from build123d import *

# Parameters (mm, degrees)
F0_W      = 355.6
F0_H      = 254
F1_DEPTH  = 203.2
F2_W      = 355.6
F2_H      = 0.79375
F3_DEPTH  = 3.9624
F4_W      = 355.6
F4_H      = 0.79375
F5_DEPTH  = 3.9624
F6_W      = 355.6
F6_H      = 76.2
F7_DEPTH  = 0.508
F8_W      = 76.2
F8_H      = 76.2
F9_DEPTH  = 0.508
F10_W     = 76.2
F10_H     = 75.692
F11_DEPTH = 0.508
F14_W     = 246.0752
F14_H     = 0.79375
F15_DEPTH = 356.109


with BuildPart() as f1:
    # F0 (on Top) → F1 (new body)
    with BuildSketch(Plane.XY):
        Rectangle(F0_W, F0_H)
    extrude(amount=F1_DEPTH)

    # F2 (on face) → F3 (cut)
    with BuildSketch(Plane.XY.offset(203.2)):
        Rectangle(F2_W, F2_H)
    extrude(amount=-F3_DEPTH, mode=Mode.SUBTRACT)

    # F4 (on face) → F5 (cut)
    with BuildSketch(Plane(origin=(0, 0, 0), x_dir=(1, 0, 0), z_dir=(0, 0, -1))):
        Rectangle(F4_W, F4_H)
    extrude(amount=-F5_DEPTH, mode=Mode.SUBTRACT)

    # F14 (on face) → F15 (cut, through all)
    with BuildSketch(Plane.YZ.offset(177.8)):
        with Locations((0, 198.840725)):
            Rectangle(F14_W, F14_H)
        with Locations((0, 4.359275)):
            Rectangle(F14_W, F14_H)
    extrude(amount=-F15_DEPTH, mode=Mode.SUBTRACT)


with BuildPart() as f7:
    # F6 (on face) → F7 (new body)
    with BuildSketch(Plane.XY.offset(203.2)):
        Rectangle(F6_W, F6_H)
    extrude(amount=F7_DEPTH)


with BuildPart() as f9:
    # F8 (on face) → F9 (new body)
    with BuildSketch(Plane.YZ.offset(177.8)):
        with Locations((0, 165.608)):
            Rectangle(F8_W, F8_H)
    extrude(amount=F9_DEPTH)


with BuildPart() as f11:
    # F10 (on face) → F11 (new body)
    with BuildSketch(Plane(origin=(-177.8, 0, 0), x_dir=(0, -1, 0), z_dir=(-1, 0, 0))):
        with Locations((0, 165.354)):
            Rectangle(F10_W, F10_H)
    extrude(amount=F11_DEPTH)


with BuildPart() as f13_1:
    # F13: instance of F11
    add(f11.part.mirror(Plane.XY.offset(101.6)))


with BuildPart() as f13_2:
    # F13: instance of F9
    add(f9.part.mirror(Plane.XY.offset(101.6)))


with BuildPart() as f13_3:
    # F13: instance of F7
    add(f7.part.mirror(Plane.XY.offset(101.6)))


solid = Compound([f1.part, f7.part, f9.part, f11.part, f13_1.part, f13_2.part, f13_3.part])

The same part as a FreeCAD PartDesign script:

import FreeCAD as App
import Part
import Sketcher
Q = App.Units.Quantity

doc = App.newDocument("Part")
body = doc.addObject("PartDesign::Body", "Body")

# Sketch on XY plane
sketch1 = body.newObject("Sketcher::SketchObject", "Sketch")
sketch1.AttachmentSupport = (doc.getObject("XY_Plane"), [""])
sketch1.MapMode = "FlatFace"
sketch1.addGeometry(Part.LineSegment(App.Vector(-178, 127, 0), App.Vector(-178, -127, 0)), False)
sketch1.addGeometry(Part.LineSegment(App.Vector(-178, -127, 0), App.Vector(178, -127, 0)), False)
sketch1.addGeometry(Part.LineSegment(App.Vector(178, -127, 0), App.Vector(178, 127, 0)), False)
sketch1.addGeometry(Part.LineSegment(App.Vector(178, 127, 0), App.Vector(-178, 127, 0)), False)
sketch1.addConstraint(Sketcher.Constraint("Coincident", 0, 2, 1, 1))
sketch1.addConstraint(Sketcher.Constraint("Coincident", 1, 2, 2, 1))
sketch1.addConstraint(Sketcher.Constraint("Coincident", 2, 2, 3, 1))
sketch1.addConstraint(Sketcher.Constraint("Coincident", 3, 2, 0, 1))
sketch1.addConstraint(Sketcher.Constraint("Vertical", 0))
sketch1.addConstraint(Sketcher.Constraint("Horizontal", 1))
sketch1.addConstraint(Sketcher.Constraint("Vertical", 2))
sketch1.addConstraint(Sketcher.Constraint("Horizontal", 3))
sketch1.addConstraint(Sketcher.Constraint("Symmetric", 0, 2, 2, 2, -1, 1))
sketch1.addConstraint(Sketcher.Constraint("DistanceX", 1, 1, 1, 2, Q("14 in")))
sketch1.addConstraint(Sketcher.Constraint("DistanceY", 0, 2, 0, 1, Q("10 in")))
pad1 = body.newObject("PartDesign::Pad", "Pad")
pad1.Profile = sketch1
pad1.Length = Q("8 in")

# Sketch on XY plane
sketch2 = body.newObject("Sketcher::SketchObject", "Sketch001")
sketch2.AttachmentSupport = (doc.getObject("XY_Plane"), [""])
sketch2.MapMode = "FlatFace"
sketch2.AttachmentOffset = App.Placement(App.Vector(0, 0, 8 * 25.4), App.Rotation())
sketch2.addGeometry(Part.LineSegment(App.Vector(-177.8, 0.4, 0), App.Vector(-177.8, -0.4, 0)), False)
sketch2.addGeometry(Part.LineSegment(App.Vector(-177.8, -0.4, 0), App.Vector(177.8, -0.4, 0)), False)
sketch2.addGeometry(Part.LineSegment(App.Vector(177.8, -0.4, 0), App.Vector(177.8, 0.4, 0)), False)
sketch2.addGeometry(Part.LineSegment(App.Vector(177.8, 0.4, 0), App.Vector(-177.8, 0.4, 0)), False)
sketch2.addConstraint(Sketcher.Constraint("Coincident", 0, 2, 1, 1))
sketch2.addConstraint(Sketcher.Constraint("Coincident", 1, 2, 2, 1))
sketch2.addConstraint(Sketcher.Constraint("Coincident", 2, 2, 3, 1))
sketch2.addConstraint(Sketcher.Constraint("Coincident", 3, 2, 0, 1))
sketch2.addConstraint(Sketcher.Constraint("Vertical", 0))
sketch2.addConstraint(Sketcher.Constraint("Horizontal", 1))
sketch2.addConstraint(Sketcher.Constraint("Vertical", 2))
sketch2.addConstraint(Sketcher.Constraint("Horizontal", 3))
sketch2.addConstraint(Sketcher.Constraint("Symmetric", 0, 2, 2, 2, -1, 1))
sketch2.addConstraint(Sketcher.Constraint("DistanceX", 1, 1, 1, 2, Q("14 in")))
sketch2.addConstraint(Sketcher.Constraint("DistanceY", 0, 2, 0, 1, Q("0.03125 in")))
pocket1 = body.newObject("PartDesign::Pocket", "Pocket")
pocket1.Profile = sketch2
pocket1.Length = Q("0.156 in")

# Sketch on XY plane
sketch3 = body.newObject("Sketcher::SketchObject", "Sketch002")
sketch3.AttachmentSupport = (doc.getObject("XY_Plane"), [""])
sketch3.MapMode = "FlatFace"
sketch3.addGeometry(Part.LineSegment(App.Vector(-177.8, -0.4, 0), App.Vector(-177.8, 0.4, 0)), False)
sketch3.addGeometry(Part.LineSegment(App.Vector(-177.8, 0.4, 0), App.Vector(177.8, 0.4, 0)), False)
sketch3.addGeometry(Part.LineSegment(App.Vector(177.8, 0.4, 0), App.Vector(177.8, -0.4, 0)), False)
sketch3.addGeometry(Part.LineSegment(App.Vector(177.8, -0.4, 0), App.Vector(-177.8, -0.4, 0)), False)
sketch3.addConstraint(Sketcher.Constraint("Coincident", 0, 2, 1, 1))
sketch3.addConstraint(Sketcher.Constraint("Coincident", 1, 2, 2, 1))
sketch3.addConstraint(Sketcher.Constraint("Coincident", 2, 2, 3, 1))
sketch3.addConstraint(Sketcher.Constraint("Coincident", 3, 2, 0, 1))
sketch3.addConstraint(Sketcher.Constraint("Vertical", 0))
sketch3.addConstraint(Sketcher.Constraint("Horizontal", 1))
sketch3.addConstraint(Sketcher.Constraint("Vertical", 2))
sketch3.addConstraint(Sketcher.Constraint("Horizontal", 3))
sketch3.addConstraint(Sketcher.Constraint("Symmetric", 0, 2, 2, 2, -1, 1))
sketch3.addConstraint(Sketcher.Constraint("DistanceX", 1, 1, 1, 2, Q("14 in")))
sketch3.addConstraint(Sketcher.Constraint("DistanceY", 0, 1, 0, 2, Q("0.03125 in")))
pocket2 = body.newObject("PartDesign::Pocket", "Pocket001")
pocket2.Profile = sketch3
pocket2.Length = Q("0.156 in")
pocket2.Reversed = True

# Sketch on YZ plane
sketch4 = body.newObject("Sketcher::SketchObject", "Sketch003")
sketch4.AttachmentSupport = (doc.getObject("YZ_Plane"), [""])
sketch4.MapMode = "FlatFace"
sketch4.AttachmentOffset = App.Placement(App.Vector(0, 0, 7 * 25.4), App.Rotation())
sketch4.addGeometry(Part.LineSegment(App.Vector(-123, 199.2, 0), App.Vector(-123, 198.4, 0)), False)
sketch4.addGeometry(Part.LineSegment(App.Vector(-123, 198.4, 0), App.Vector(123, 198.4, 0)), False)
sketch4.addGeometry(Part.LineSegment(App.Vector(123, 198.4, 0), App.Vector(123, 199.2, 0)), False)
sketch4.addGeometry(Part.LineSegment(App.Vector(123, 199.2, 0), App.Vector(-123, 199.2, 0)), False)
sketch4.addGeometry(Part.LineSegment(App.Vector(-123, 4.8, 0), App.Vector(-123, 4, 0)), False)
sketch4.addGeometry(Part.LineSegment(App.Vector(-123, 4, 0), App.Vector(123, 4, 0)), False)
sketch4.addGeometry(Part.LineSegment(App.Vector(123, 4, 0), App.Vector(123, 4.8, 0)), False)
sketch4.addGeometry(Part.LineSegment(App.Vector(123, 4.8, 0), App.Vector(-123, 4.8, 0)), False)
sketch4.addConstraint(Sketcher.Constraint("Coincident", 0, 2, 1, 1))
sketch4.addConstraint(Sketcher.Constraint("Coincident", 1, 2, 2, 1))
sketch4.addConstraint(Sketcher.Constraint("Coincident", 2, 2, 3, 1))
sketch4.addConstraint(Sketcher.Constraint("Coincident", 3, 2, 0, 1))
sketch4.addConstraint(Sketcher.Constraint("Coincident", 4, 2, 5, 1))
sketch4.addConstraint(Sketcher.Constraint("Coincident", 5, 2, 6, 1))
sketch4.addConstraint(Sketcher.Constraint("Coincident", 6, 2, 7, 1))
sketch4.addConstraint(Sketcher.Constraint("Coincident", 7, 2, 4, 1))
sketch4.addConstraint(Sketcher.Constraint("Vertical", 0))
sketch4.addConstraint(Sketcher.Constraint("Horizontal", 1))
sketch4.addConstraint(Sketcher.Constraint("Vertical", 2))
sketch4.addConstraint(Sketcher.Constraint("Horizontal", 3))
sketch4.addConstraint(Sketcher.Constraint("Vertical", 4))
sketch4.addConstraint(Sketcher.Constraint("Horizontal", 5))
sketch4.addConstraint(Sketcher.Constraint("Vertical", 6))
sketch4.addConstraint(Sketcher.Constraint("Horizontal", 7))
sketch4.addConstraint(Sketcher.Constraint("Vertical", 3, 2, 4, 2))
sketch4.addConstraint(Sketcher.Constraint("Vertical", 2, 2, 5, 2))
sketch4.addConstraint(Sketcher.Constraint("Equal", 2, 4))
sketch4.addConstraint(Sketcher.Constraint("DistanceX", 1, 1, 1, 2, Q("9.688 in")))
sketch4.addConstraint(Sketcher.Constraint("DistanceY", 0, 2, 0, 1, Q("0.03125 in")))
sketch4.addConstraint(Sketcher.Constraint("DistanceX", 0, 2, -1, 1, Q("4.844 in")))
sketch4.addConstraint(Sketcher.Constraint("DistanceY", -1, 1, 2, 2, Q("7.844 in")))
sketch4.addConstraint(Sketcher.Constraint("DistanceY", -1, 1, 4, 2, Q("0.156 in")))
pocket3 = body.newObject("PartDesign::Pocket", "Pocket002")
pocket3.Profile = sketch4
pocket3.Type = "ThroughAll"
body2 = doc.addObject("PartDesign::Body", "Body001")

# Sketch on XY plane
sketch5 = body2.newObject("Sketcher::SketchObject", "Sketch004")
sketch5.AttachmentSupport = (doc.getObject("XY_Plane001"), [""])
sketch5.MapMode = "FlatFace"
sketch5.AttachmentOffset = App.Placement(App.Vector(0, 0, 8 * 25.4), App.Rotation())
sketch5.addGeometry(Part.LineSegment(App.Vector(-178, 38, 0), App.Vector(-178, -38, 0)), False)
sketch5.addGeometry(Part.LineSegment(App.Vector(-178, -38, 0), App.Vector(178, -38, 0)), False)
sketch5.addGeometry(Part.LineSegment(App.Vector(178, -38, 0), App.Vector(178, 38, 0)), False)
sketch5.addGeometry(Part.LineSegment(App.Vector(178, 38, 0), App.Vector(-178, 38, 0)), False)
sketch5.addConstraint(Sketcher.Constraint("Coincident", 0, 2, 1, 1))
sketch5.addConstraint(Sketcher.Constraint("Coincident", 1, 2, 2, 1))
sketch5.addConstraint(Sketcher.Constraint("Coincident", 2, 2, 3, 1))
sketch5.addConstraint(Sketcher.Constraint("Coincident", 3, 2, 0, 1))
sketch5.addConstraint(Sketcher.Constraint("Vertical", 0))
sketch5.addConstraint(Sketcher.Constraint("Horizontal", 1))
sketch5.addConstraint(Sketcher.Constraint("Vertical", 2))
sketch5.addConstraint(Sketcher.Constraint("Horizontal", 3))
sketch5.addConstraint(Sketcher.Constraint("Symmetric", 0, 2, 2, 2, -1, 1))
sketch5.addConstraint(Sketcher.Constraint("DistanceX", 1, 1, 1, 2, Q("14 in")))
sketch5.addConstraint(Sketcher.Constraint("DistanceY", 0, 2, 0, 1, Q("3 in")))
pad2 = body2.newObject("PartDesign::Pad", "Pad001")
pad2.Profile = sketch5
pad2.Length = Q("0.02 in")
body3 = doc.addObject("PartDesign::Body", "Body002")

# Sketch on YZ plane
sketch6 = body3.newObject("Sketcher::SketchObject", "Sketch005")
sketch6.AttachmentSupport = (doc.getObject("YZ_Plane002"), [""])
sketch6.MapMode = "FlatFace"
sketch6.AttachmentOffset = App.Placement(App.Vector(0, 0, 7 * 25.4), App.Rotation())
sketch6.addGeometry(Part.LineSegment(App.Vector(-38, 204, 0), App.Vector(-38, 128, 0)), False)
sketch6.addGeometry(Part.LineSegment(App.Vector(-38, 128, 0), App.Vector(38, 128, 0)), False)
sketch6.addGeometry(Part.LineSegment(App.Vector(38, 128, 0), App.Vector(38, 204, 0)), False)
sketch6.addGeometry(Part.LineSegment(App.Vector(38, 204, 0), App.Vector(-38, 204, 0)), False)
sketch6.addConstraint(Sketcher.Constraint("Coincident", 0, 2, 1, 1))
sketch6.addConstraint(Sketcher.Constraint("Coincident", 1, 2, 2, 1))
sketch6.addConstraint(Sketcher.Constraint("Coincident", 2, 2, 3, 1))
sketch6.addConstraint(Sketcher.Constraint("Coincident", 3, 2, 0, 1))
sketch6.addConstraint(Sketcher.Constraint("Vertical", 0))
sketch6.addConstraint(Sketcher.Constraint("Horizontal", 1))
sketch6.addConstraint(Sketcher.Constraint("Vertical", 2))
sketch6.addConstraint(Sketcher.Constraint("Horizontal", 3))
sketch6.addConstraint(Sketcher.Constraint("Equal", 3, 0))
sketch6.addConstraint(Sketcher.Constraint("DistanceX", 1, 1, 1, 2, Q("3 in")))
sketch6.addConstraint(Sketcher.Constraint("DistanceX", 0, 2, -1, 1, Q("1.5 in")))
sketch6.addConstraint(Sketcher.Constraint("DistanceY", -1, 1, 0, 2, Q("5.02 in")))
pad3 = body3.newObject("PartDesign::Pad", "Pad002")
pad3.Profile = sketch6
pad3.Length = Q("0.02 in")
body4 = doc.addObject("PartDesign::Body", "Body003")

# Sketch on YZ plane
sketch7 = body4.newObject("Sketcher::SketchObject", "Sketch006")
sketch7.AttachmentSupport = (doc.getObject("YZ_Plane003"), [""])
sketch7.MapMode = "FlatFace"
sketch7.AttachmentOffset = App.Placement(App.Vector(0, 0, -7 * 25.4), App.Rotation())
sketch7.addGeometry(Part.LineSegment(App.Vector(38, 203, 0), App.Vector(38, 128, 0)), False)
sketch7.addGeometry(Part.LineSegment(App.Vector(38, 128, 0), App.Vector(-38, 128, 0)), False)
sketch7.addGeometry(Part.LineSegment(App.Vector(-38, 128, 0), App.Vector(-38, 203, 0)), False)
sketch7.addGeometry(Part.LineSegment(App.Vector(-38, 203, 0), App.Vector(38, 203, 0)), False)
sketch7.addConstraint(Sketcher.Constraint("Coincident", 0, 2, 1, 1))
sketch7.addConstraint(Sketcher.Constraint("Coincident", 1, 2, 2, 1))
sketch7.addConstraint(Sketcher.Constraint("Coincident", 2, 2, 3, 1))
sketch7.addConstraint(Sketcher.Constraint("Coincident", 3, 2, 0, 1))
sketch7.addConstraint(Sketcher.Constraint("Vertical", 0))
sketch7.addConstraint(Sketcher.Constraint("Horizontal", 1))
sketch7.addConstraint(Sketcher.Constraint("Vertical", 2))
sketch7.addConstraint(Sketcher.Constraint("Horizontal", 3))
sketch7.addConstraint(Sketcher.Constraint("DistanceX", 1, 2, 1, 1, Q("3 in")))
sketch7.addConstraint(Sketcher.Constraint("DistanceY", -1, 1, 2, 2, Q("8 in")))
sketch7.addConstraint(Sketcher.Constraint("DistanceY", 0, 2, 0, 1, Q("2.98 in")))
sketch7.addConstraint(Sketcher.Constraint("DistanceX", -1, 1, 0, 2, Q("1.5 in")))
pad4 = body4.newObject("PartDesign::Pad", "Pad003")
pad4.Profile = sketch7
pad4.Length = Q("0.02 in")
pad4.Reversed = True
body5 = doc.addObject("PartDesign::Body", "Body004")
doc.recompute()

mirroring = doc.addObject("Part::Mirroring", "Mirroring")
mirroring.Source = body4
mirroring.Base = App.Vector(0, 0, 101.6)
mirroring.Normal = App.Vector(0, 0, 1)
body5.BaseFeature = mirroring
doc.recompute()
body6 = doc.addObject("PartDesign::Body", "Body005")
doc.recompute()

mirroring2 = doc.addObject("Part::Mirroring", "Mirroring001")
mirroring2.Source = body3
mirroring2.Base = App.Vector(0, 0, 101.6)
mirroring2.Normal = App.Vector(0, 0, 1)
body6.BaseFeature = mirroring2
doc.recompute()
body7 = doc.addObject("PartDesign::Body", "Body006")
doc.recompute()

mirroring3 = doc.addObject("Part::Mirroring", "Mirroring002")
mirroring3.Source = body2
mirroring3.Base = App.Vector(0, 0, 101.6)
mirroring3.Normal = App.Vector(0, 0, 1)
body7.BaseFeature = mirroring3
doc.recompute()
mirroring.Visibility = False
mirroring2.Visibility = False
mirroring3.Visibility = False

doc.recompute()
